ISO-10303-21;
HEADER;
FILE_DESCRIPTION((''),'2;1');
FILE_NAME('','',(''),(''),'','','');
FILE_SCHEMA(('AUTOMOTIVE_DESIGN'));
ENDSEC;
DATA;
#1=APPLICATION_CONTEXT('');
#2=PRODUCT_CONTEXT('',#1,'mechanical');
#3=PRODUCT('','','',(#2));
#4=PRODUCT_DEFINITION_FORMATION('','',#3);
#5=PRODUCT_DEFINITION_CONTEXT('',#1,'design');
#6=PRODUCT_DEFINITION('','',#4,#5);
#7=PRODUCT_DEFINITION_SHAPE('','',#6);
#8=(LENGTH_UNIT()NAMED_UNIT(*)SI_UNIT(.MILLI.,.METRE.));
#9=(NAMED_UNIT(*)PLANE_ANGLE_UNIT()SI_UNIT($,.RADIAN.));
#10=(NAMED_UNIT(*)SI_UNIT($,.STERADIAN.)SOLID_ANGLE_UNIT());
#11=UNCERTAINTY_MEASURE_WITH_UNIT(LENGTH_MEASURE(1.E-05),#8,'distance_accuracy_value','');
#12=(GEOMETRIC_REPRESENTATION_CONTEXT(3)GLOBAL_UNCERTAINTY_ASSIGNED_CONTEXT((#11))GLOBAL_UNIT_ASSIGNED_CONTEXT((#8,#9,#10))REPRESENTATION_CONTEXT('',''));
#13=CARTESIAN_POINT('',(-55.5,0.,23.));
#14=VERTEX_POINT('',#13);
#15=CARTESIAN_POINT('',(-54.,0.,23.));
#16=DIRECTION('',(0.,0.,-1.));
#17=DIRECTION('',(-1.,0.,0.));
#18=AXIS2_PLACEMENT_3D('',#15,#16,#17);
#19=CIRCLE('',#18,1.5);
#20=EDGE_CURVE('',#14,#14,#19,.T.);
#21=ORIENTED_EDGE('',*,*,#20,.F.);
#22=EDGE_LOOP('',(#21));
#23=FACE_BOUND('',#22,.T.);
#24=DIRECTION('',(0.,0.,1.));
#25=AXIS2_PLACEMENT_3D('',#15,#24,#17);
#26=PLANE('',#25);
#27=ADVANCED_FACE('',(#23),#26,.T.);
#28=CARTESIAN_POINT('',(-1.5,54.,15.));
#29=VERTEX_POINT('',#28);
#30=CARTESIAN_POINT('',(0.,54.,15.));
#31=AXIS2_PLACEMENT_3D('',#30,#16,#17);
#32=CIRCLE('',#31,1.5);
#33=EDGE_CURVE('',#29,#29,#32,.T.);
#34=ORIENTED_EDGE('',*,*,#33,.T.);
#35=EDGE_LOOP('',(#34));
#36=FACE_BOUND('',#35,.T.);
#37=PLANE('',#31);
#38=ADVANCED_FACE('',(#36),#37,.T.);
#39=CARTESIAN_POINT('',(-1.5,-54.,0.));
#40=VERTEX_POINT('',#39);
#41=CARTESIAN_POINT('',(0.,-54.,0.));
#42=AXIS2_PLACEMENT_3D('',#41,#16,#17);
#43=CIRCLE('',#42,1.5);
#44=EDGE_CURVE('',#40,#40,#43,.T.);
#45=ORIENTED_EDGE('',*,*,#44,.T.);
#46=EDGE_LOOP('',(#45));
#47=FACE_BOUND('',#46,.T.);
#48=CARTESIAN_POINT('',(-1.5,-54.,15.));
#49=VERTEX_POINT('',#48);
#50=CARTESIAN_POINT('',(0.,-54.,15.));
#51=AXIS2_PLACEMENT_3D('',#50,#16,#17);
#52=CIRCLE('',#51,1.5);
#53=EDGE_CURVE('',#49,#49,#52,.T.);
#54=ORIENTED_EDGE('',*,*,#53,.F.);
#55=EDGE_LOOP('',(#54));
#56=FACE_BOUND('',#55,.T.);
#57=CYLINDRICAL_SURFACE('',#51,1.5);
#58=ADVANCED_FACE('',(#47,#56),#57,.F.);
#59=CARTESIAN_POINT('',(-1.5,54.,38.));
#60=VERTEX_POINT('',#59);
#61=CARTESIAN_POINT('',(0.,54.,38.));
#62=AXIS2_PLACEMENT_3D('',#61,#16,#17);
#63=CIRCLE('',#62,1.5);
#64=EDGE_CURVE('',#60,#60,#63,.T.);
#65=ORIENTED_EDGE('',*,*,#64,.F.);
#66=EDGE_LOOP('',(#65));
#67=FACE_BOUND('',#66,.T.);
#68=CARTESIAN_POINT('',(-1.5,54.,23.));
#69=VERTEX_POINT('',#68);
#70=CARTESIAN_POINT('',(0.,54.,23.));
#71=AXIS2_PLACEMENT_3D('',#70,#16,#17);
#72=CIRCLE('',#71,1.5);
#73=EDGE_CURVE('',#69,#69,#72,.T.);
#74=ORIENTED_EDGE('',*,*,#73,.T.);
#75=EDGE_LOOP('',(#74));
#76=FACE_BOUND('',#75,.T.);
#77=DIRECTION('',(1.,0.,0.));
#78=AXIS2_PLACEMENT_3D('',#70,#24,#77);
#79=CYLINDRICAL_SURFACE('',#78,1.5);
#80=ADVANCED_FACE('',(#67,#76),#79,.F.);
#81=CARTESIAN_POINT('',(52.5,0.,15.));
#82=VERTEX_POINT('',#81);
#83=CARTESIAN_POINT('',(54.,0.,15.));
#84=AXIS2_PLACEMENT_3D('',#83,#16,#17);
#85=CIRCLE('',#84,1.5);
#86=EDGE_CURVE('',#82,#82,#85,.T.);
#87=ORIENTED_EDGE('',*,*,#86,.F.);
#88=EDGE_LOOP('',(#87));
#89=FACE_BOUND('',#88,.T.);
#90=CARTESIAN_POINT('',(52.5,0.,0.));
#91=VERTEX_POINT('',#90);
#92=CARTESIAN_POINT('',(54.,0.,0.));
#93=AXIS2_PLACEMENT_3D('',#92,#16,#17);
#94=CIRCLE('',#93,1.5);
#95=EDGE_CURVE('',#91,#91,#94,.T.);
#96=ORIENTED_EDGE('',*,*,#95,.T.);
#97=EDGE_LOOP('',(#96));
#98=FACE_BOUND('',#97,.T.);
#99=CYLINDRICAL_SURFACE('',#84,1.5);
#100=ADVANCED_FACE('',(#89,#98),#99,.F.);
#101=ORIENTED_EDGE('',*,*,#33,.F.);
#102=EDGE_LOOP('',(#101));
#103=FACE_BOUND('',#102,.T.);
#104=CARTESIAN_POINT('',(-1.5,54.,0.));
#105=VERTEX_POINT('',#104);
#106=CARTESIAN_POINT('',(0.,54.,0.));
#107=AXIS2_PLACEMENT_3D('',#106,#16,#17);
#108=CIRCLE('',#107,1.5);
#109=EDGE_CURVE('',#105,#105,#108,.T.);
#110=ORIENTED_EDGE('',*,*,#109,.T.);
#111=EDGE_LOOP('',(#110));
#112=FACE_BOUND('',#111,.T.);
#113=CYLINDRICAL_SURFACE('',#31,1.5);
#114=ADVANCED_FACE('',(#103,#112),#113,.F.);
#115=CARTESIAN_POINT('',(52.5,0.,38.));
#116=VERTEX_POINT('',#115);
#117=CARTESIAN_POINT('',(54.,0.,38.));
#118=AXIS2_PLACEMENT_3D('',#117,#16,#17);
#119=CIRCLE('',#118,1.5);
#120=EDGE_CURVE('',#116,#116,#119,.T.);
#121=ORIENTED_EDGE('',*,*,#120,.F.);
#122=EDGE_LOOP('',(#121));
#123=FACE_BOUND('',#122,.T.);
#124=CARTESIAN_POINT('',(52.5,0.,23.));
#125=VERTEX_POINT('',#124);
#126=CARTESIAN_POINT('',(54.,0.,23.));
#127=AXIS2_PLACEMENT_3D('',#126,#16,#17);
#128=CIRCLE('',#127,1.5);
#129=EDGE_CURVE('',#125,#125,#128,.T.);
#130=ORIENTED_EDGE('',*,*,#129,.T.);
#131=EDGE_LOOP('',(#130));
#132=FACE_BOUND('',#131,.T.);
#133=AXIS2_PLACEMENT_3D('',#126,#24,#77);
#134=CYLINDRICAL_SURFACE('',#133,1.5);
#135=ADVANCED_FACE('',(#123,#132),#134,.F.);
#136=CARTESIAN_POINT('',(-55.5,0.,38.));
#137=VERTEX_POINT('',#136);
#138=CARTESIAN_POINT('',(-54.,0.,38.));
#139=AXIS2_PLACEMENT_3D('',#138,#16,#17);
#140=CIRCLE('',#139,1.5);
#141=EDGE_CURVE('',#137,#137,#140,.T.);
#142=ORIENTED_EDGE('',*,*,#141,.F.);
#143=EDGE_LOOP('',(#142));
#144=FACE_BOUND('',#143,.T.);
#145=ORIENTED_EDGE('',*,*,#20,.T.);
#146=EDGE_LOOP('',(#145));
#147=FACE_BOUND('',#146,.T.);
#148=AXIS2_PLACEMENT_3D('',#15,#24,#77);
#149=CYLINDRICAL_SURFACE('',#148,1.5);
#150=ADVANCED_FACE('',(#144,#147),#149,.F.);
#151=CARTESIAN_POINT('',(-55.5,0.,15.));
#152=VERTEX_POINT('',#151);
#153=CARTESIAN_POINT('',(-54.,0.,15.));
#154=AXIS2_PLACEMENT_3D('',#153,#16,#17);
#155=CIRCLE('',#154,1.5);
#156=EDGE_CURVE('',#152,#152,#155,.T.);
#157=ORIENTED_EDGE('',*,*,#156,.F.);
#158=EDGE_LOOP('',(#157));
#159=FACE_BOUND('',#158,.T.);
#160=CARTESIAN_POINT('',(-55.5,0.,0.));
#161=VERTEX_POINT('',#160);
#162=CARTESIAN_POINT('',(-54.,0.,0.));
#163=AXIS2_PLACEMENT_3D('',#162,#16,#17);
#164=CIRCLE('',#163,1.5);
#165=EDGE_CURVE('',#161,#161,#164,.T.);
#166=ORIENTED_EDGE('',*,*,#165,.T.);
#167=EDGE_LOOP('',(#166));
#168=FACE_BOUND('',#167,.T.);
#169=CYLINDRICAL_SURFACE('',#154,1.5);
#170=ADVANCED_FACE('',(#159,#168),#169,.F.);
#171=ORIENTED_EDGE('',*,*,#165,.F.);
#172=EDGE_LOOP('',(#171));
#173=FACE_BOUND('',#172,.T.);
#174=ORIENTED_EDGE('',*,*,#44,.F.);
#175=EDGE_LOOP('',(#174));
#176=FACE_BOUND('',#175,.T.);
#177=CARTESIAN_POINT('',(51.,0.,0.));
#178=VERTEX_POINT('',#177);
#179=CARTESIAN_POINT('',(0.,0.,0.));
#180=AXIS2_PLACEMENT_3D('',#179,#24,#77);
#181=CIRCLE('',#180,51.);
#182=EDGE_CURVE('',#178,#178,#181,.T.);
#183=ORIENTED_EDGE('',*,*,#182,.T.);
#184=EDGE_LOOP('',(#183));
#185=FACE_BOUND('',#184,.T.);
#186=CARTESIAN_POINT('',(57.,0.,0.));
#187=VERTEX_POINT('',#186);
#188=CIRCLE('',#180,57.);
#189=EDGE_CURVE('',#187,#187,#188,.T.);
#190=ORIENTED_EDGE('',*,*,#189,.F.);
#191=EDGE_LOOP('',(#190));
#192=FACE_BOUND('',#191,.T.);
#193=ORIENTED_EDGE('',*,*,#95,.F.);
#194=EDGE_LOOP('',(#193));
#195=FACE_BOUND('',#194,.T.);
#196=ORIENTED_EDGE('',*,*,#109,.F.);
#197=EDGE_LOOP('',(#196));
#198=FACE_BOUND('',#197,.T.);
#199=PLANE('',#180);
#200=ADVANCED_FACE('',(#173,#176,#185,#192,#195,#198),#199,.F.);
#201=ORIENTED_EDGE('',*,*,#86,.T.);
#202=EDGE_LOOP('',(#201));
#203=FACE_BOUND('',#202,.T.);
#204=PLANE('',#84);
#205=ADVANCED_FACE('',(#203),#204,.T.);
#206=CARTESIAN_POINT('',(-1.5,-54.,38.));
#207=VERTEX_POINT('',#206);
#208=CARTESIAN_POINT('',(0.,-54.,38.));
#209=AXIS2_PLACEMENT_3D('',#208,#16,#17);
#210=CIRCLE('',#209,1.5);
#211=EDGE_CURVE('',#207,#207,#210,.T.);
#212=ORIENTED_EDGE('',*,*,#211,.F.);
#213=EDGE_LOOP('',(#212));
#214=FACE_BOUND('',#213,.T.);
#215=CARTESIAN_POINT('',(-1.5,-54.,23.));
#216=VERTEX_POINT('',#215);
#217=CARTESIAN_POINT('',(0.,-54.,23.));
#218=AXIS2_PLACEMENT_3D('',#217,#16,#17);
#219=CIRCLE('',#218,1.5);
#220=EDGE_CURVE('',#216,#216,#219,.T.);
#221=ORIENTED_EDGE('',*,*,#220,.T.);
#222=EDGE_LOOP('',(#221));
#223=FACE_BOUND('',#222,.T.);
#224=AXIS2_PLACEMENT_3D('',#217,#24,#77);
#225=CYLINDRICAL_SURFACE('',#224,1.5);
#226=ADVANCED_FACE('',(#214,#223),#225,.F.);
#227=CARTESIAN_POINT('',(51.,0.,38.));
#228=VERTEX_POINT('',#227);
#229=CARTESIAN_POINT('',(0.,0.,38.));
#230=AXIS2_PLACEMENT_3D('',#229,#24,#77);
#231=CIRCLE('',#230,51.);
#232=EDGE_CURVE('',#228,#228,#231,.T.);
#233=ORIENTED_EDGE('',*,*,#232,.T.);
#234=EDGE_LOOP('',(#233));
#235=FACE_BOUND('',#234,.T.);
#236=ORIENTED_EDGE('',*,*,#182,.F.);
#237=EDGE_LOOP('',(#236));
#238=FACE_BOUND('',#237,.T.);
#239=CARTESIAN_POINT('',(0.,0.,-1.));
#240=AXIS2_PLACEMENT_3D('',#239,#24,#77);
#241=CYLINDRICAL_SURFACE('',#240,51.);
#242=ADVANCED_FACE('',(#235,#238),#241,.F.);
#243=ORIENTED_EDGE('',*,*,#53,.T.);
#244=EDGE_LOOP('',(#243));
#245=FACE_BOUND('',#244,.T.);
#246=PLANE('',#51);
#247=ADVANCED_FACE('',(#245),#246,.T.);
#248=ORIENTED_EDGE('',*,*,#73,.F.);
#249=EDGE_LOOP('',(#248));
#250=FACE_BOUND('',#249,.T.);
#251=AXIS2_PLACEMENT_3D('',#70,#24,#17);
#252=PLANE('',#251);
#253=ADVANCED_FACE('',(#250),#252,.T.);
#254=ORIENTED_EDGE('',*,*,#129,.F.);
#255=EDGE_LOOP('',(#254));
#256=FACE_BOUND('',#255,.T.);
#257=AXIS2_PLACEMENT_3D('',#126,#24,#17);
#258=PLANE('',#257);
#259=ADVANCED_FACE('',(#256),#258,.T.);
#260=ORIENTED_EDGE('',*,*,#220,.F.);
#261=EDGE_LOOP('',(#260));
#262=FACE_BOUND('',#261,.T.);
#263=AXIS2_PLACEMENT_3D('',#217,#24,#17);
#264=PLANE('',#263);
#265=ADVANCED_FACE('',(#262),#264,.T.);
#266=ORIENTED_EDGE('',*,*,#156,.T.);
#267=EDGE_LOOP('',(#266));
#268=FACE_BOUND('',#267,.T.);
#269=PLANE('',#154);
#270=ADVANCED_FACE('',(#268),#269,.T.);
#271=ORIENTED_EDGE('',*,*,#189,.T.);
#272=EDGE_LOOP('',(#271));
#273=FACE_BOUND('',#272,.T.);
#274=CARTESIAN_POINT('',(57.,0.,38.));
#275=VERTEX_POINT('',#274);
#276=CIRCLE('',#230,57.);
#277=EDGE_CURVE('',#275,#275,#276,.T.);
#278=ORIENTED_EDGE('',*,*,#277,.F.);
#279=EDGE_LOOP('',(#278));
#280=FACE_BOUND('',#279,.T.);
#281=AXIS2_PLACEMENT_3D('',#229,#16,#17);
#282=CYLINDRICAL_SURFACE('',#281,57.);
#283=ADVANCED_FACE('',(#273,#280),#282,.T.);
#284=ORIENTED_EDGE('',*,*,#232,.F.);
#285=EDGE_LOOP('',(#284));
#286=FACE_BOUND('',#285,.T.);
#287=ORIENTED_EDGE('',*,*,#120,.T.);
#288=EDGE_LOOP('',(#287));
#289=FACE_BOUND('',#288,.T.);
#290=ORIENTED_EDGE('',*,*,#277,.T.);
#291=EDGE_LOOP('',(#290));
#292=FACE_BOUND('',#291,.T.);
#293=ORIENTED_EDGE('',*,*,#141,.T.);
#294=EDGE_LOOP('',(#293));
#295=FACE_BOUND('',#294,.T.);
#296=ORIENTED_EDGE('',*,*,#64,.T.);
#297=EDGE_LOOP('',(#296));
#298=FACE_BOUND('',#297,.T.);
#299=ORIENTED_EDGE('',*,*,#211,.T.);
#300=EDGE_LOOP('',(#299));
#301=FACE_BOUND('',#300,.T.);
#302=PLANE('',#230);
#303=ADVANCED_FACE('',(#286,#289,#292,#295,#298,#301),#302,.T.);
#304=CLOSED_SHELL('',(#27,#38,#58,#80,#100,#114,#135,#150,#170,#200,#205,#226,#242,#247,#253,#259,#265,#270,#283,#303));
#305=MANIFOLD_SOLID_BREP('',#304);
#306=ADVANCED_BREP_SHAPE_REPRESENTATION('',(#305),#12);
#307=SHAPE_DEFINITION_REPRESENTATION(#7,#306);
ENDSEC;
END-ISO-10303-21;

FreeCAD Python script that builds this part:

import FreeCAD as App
import Part
import Sketcher
from FreeCAD import Vector

doc = App.newDocument("Part")
body = doc.addObject("PartDesign::Body", "Body")

sketch1 = body.newObject("Sketcher::SketchObject", "Sketch")
sketch1.AttachmentSupport = (doc.getObject("XY_Plane"), [""])
sketch1.MapMode = "FlatFace"
sketch1.addGeometry(Part.Circle(Vector(0, 0, 0), Vector(0, 0, 1), 57), False)
sketch1.addConstraint(Sketcher.Constraint("Coincident", 0, 3, -1, 1))
sketch1.addConstraint(Sketcher.Constraint("Diameter", 0, 114.0))
pad1 = body.newObject("PartDesign::Pad", "Pad")
pad1.Profile = sketch1
pad1.Length = 38

sketch2 = body.newObject("Sketcher::SketchObject", "Sketch001")
sketch2.AttachmentSupport = (doc.getObject("XY_Plane"), [""])
sketch2.MapMode = "FlatFace"
sketch2.AttachmentOffset = App.Placement(Vector(0, 0, 38), App.Rotation())
sketch2.addGeometry(Part.Circle(Vector(0, 0, 0), Vector(0, 0, 1), 51), False)
sketch2.addConstraint(Sketcher.Constraint("Coincident", 0, 3, -1, 1))
sketch2.addConstraint(Sketcher.Constraint("Diameter", 0, 102.0))
pocket1 = body.newObject("PartDesign::Pocket", "Pocket")
pocket1.Profile = sketch2
pocket1.Length = 39

sketch3 = body.newObject("Sketcher::SketchObject", "Sketch002")
sketch3.AttachmentSupport = (doc.getObject("XY_Plane"), [""])
sketch3.MapMode = "FlatFace"
sketch3.addGeometry(Part.Circle(Vector(0, 54, 0), Vector(0, 0, 1), 1.5), False)
sketch3.addGeometry(Part.Circle(Vector(-54, 0, 0), Vector(0, 0, 1), 1.5), False)
sketch3.addGeometry(Part.Circle(Vector(0, -54, 0), Vector(0, 0, 1), 1.5), False)
sketch3.addGeometry(Part.Circle(Vector(54, 0, 0), Vector(0, 0, 1), 1.5), False)
sketch3.addConstraint(Sketcher.Constraint("Equal", 0, 1))
sketch3.addConstraint(Sketcher.Constraint("Equal", 1, 2))
sketch3.addConstraint(Sketcher.Constraint("Equal", 2, 3))
sketch3.addConstraint(Sketcher.Constraint("Symmetric", 0, 3, 2, 3, -1, 1))
sketch3.addConstraint(Sketcher.Constraint("Symmetric", 1, 3, 3, 3, -1, 1))
sketch3.addConstraint(Sketcher.Constraint("PointOnObject", 0, 3, -2))
sketch3.addConstraint(Sketcher.Constraint("PointOnObject", 1, 3, -1))
sketch3.addConstraint(Sketcher.Constraint("Diameter", 0, 3.0))
sketch3.addConstraint(Sketcher.Constraint("DistanceY", -1, 1, 0, 3, 54.0))
sketch3.addConstraint(Sketcher.Constraint("DistanceX", 1, 3, -1, 1, 54.0))
pocket2 = body.newObject("PartDesign::Pocket", "Pocket001")
pocket2.Profile = sketch3
pocket2.Length = 15
pocket2.Reversed = True
doc.recompute()

datumplane = body.newObject("PartDesign::Plane", "DatumPlane")
datumplane.AttachmentSupport = (doc.getObject("XY_Plane"), [""])
datumplane.MapMode = "FlatFace"
datumplane.AttachmentOffset = App.Placement(Vector(0, 0, 19), App.Rotation())
mirrored = body.newObject("PartDesign::Mirrored", "Mirrored")
mirrored.Originals = [pocket2]
mirrored.MirrorPlane = (datumplane, [""])
body.Tip = mirrored

doc.recompute()
